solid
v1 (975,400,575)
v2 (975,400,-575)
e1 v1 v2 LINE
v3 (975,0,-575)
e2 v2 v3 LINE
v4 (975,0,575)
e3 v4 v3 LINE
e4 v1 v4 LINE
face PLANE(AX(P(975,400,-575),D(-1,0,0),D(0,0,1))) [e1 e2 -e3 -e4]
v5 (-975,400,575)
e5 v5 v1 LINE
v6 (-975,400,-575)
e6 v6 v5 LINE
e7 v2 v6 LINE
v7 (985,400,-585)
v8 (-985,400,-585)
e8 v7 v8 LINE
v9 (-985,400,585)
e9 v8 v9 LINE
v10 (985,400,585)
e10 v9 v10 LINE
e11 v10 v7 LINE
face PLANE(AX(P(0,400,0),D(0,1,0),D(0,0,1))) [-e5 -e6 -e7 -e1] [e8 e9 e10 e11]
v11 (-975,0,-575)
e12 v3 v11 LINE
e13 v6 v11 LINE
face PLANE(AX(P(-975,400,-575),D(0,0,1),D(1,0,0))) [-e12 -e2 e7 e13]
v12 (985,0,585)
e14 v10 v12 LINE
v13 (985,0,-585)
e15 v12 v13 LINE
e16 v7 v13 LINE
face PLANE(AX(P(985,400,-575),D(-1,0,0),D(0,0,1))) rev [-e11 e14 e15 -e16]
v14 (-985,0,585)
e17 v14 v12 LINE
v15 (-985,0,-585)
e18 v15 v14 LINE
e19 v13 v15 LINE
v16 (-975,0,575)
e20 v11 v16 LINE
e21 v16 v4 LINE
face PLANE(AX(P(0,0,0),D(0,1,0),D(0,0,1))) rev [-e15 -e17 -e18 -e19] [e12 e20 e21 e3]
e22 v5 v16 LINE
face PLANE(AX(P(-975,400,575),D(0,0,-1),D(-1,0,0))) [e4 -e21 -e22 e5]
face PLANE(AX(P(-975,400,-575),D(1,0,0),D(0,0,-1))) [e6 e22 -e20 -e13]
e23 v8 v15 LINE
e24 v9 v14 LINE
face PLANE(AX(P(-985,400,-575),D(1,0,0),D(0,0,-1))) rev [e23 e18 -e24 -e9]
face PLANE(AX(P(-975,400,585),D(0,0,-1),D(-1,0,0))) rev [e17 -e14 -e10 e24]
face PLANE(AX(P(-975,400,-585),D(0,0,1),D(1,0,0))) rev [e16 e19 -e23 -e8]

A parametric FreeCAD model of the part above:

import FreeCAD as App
import Part
import Sketcher

V = App.Vector


def add_polygon(sketch, points):
    """Adds a closed chain of lines whose ends are joined by coincident constraints."""
    first, n = sketch.GeometryCount, len(points)
    for a, b in zip(points, points[1:] + points[:1]):
        sketch.addGeometry(Part.LineSegment(App.Vector(*a, 0), App.Vector(*b, 0)), False)
    for i in range(n):
        sketch.addConstraint(Sketcher.Constraint("Coincident", first + i, 2, first + (i + 1) % n, 1))

doc = App.newDocument("Part")
body = doc.addObject("PartDesign::Body", "Body")

# Sketch on XZ plane
sketch1 = doc.addObject("Sketcher::SketchObject", "Sketch")
body.addObject(sketch1)
sketch1.AttachmentSupport = (doc.XZ_Plane, [""])
sketch1.MapMode = "FlatFace"
add_polygon(sketch1, [(-985, -585), (-985, 585), (985, 585), (985, -585)])  # lines 0-3
add_polygon(sketch1, [(975, 575), (-975, 575), (-975, -575), (975, -575)])  # lines 4-7
sketch1.addConstraint([
    Sketcher.Constraint("Vertical", 0),
    Sketcher.Constraint("Horizontal", 1),
    Sketcher.Constraint("Vertical", 2),
    Sketcher.Constraint("Horizontal", 3),
    Sketcher.Constraint("Horizontal", 4),
    Sketcher.Constraint("Vertical", 5),
    Sketcher.Constraint("Horizontal", 6),
    Sketcher.Constraint("Vertical", 7),
    Sketcher.Constraint("Symmetric", 0, 2, 2, 2, -1, 1),
    Sketcher.Constraint("Symmetric", 4, 2, 6, 2, -1, 1),
    Sketcher.Constraint("DistanceX", 1, 1, 1, 2, 1970.0),
    Sketcher.Constraint("DistanceX", 4, 2, 4, 1, 1950.0),
    Sketcher.Constraint("DistanceY", 0, 1, 0, 2, 1170.0),
    Sketcher.Constraint("DistanceY", 5, 2, 5, 1, 1150.0),
])
pad1 = doc.addObject("PartDesign::Pad", "Pad")
body.addObject(pad1)
pad1.Profile = sketch1
pad1.Length = 400
pad1.Reversed = True

doc.recompute()
